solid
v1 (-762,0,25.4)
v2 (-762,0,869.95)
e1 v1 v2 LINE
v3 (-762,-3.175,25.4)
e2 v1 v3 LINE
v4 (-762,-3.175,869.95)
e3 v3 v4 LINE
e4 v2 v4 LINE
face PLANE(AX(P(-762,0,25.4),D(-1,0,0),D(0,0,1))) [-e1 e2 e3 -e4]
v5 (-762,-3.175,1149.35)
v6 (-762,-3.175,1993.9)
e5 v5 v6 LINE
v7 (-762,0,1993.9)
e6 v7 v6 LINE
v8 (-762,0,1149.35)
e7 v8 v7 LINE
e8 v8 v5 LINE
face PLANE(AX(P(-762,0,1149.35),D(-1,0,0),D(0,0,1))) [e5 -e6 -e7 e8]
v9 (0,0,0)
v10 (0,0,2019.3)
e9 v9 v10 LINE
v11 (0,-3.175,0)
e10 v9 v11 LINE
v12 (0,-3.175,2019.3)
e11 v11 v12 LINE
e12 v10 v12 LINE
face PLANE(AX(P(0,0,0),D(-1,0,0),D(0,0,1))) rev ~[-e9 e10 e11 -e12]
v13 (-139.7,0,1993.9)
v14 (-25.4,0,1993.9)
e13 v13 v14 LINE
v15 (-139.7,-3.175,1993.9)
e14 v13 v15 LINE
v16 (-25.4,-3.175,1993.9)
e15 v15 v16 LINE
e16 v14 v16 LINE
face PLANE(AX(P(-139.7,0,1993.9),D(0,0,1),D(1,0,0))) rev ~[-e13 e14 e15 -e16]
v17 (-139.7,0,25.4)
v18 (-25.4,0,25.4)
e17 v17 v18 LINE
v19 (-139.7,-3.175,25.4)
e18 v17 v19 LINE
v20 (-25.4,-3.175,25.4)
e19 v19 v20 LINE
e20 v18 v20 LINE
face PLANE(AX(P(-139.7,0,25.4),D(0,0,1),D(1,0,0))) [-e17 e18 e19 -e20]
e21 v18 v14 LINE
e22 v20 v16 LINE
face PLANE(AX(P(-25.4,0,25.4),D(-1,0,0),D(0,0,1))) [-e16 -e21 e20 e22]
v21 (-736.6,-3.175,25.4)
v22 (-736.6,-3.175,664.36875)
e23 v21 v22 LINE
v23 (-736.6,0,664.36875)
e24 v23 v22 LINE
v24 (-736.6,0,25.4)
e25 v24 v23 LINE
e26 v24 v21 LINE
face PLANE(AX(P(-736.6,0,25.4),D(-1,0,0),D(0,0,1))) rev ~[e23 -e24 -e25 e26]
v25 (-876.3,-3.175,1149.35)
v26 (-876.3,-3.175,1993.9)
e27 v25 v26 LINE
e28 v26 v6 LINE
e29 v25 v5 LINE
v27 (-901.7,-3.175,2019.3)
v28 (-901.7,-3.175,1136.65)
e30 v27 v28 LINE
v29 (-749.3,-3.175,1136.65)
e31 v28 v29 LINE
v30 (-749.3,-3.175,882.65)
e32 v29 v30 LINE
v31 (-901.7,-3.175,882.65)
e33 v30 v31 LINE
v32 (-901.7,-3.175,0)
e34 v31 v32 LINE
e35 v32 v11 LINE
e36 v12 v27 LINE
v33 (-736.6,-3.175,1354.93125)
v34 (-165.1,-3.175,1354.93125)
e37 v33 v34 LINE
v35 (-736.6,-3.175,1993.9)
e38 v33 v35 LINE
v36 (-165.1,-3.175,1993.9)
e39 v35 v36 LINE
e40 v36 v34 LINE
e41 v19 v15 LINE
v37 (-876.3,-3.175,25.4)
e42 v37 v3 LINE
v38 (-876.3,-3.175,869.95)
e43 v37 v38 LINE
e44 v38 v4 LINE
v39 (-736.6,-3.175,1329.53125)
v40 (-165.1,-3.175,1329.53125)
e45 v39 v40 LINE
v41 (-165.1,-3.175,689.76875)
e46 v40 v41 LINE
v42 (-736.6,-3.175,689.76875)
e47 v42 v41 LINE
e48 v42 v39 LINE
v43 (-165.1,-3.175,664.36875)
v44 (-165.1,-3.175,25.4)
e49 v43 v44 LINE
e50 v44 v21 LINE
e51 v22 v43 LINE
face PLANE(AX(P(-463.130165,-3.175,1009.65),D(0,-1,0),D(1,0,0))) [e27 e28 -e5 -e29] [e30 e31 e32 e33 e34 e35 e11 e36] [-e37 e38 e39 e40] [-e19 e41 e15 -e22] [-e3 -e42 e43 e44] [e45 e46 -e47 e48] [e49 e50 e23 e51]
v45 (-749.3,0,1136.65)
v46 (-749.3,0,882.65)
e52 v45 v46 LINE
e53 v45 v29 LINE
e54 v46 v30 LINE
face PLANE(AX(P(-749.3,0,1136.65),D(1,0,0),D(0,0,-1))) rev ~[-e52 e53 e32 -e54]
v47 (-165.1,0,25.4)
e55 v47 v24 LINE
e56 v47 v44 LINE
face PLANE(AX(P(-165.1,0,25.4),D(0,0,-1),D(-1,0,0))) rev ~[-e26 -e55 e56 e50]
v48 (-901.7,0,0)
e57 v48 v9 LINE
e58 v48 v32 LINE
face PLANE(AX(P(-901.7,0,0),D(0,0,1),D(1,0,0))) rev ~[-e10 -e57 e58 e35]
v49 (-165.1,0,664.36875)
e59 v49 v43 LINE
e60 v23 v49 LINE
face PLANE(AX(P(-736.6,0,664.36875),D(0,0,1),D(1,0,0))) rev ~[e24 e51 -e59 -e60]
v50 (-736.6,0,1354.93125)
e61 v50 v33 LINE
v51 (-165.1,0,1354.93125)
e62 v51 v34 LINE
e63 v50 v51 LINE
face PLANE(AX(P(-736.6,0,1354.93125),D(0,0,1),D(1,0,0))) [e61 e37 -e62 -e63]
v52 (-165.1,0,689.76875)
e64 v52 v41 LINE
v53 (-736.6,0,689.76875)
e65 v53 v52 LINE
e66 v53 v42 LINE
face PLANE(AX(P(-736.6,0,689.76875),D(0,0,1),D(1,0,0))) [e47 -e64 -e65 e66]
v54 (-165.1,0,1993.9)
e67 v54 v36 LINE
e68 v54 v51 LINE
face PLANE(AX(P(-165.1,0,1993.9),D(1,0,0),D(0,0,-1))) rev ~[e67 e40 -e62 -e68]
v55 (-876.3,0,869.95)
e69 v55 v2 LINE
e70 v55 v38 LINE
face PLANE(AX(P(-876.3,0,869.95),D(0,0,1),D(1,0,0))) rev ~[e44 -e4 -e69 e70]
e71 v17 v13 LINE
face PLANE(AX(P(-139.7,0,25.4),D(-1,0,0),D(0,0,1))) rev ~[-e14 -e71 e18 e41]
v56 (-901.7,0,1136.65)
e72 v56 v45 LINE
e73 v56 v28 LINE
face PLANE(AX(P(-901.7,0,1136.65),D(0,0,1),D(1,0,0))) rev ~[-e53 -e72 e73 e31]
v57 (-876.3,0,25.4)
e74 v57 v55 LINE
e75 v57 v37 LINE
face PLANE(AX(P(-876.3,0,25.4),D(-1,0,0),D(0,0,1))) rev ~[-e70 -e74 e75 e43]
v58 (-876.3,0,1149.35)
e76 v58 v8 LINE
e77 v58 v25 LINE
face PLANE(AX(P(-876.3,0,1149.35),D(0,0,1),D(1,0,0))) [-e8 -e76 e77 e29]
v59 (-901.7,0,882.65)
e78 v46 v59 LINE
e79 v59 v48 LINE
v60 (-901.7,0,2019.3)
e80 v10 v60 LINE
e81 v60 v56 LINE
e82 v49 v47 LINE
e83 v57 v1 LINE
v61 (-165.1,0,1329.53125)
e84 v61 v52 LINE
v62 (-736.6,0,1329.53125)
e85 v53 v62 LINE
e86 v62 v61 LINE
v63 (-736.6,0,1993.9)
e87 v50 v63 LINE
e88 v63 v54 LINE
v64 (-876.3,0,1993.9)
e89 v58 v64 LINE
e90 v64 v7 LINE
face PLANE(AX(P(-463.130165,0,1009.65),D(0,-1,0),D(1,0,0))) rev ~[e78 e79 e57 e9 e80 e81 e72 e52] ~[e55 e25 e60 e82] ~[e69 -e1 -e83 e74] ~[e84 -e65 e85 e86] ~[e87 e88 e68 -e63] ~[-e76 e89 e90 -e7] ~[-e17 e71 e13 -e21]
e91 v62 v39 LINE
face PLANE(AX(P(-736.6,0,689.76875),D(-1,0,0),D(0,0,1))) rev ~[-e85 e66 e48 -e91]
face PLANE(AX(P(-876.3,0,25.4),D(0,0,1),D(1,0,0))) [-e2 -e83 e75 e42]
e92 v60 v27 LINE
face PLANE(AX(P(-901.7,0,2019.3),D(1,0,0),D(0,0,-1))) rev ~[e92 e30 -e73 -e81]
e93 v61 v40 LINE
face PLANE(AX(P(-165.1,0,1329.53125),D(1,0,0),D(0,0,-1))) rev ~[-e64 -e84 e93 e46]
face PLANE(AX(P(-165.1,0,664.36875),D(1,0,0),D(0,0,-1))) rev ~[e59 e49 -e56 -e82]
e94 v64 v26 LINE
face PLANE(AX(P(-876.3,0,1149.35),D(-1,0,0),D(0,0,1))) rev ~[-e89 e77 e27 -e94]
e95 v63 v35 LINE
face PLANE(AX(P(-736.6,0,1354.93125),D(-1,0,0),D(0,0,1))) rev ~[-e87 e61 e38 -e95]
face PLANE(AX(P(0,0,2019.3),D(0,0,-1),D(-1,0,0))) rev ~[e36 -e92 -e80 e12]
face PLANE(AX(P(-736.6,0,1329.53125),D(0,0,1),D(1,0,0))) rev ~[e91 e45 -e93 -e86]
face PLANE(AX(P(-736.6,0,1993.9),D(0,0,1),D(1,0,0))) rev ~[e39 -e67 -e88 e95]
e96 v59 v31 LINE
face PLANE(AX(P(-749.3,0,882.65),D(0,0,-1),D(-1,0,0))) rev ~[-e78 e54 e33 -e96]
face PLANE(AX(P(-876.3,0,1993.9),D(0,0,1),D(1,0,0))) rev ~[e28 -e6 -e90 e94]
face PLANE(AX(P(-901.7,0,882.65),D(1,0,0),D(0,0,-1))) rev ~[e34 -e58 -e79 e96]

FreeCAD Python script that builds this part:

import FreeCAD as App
import Part
import Sketcher
Q = App.Units.Quantity


def add_polygon(sketch, points):
    """Adds a closed chain of lines whose ends are joined by coincident constraints."""
    first, n = sketch.GeometryCount, len(points)
    for a, b in zip(points, points[1:] + points[:1]):
        sketch.addGeometry(Part.LineSegment(App.Vector(*a, 0), App.Vector(*b, 0)), False)
    for i in range(n):
        sketch.addConstraint(Sketcher.Constraint("Coincident", first + i, 2, first + (i + 1) % n, 1))

doc = App.newDocument("Part")
body = doc.addObject("PartDesign::Body", "Body")

# Sketch on XZ plane
sketch1 = body.newObject("Sketcher::SketchObject", "Sketch")
sketch1.AttachmentSupport = (doc.getObject("XZ_Plane"), [""])
sketch1.MapMode = "FlatFace"
add_polygon(sketch1, [(-902, 0), (0, 0), (0, 2019), (-902, 2019), (-902, 1137), (-749, 1137), (-749, 883), (-902, 883)])  # lines 0-7
add_polygon(sketch1, [(-762, 25), (-876, 25), (-876, 870), (-762, 870)])  # lines 8-11
add_polygon(sketch1, [(-737, 25), (-737, 664), (-165, 664), (-165, 25)])  # lines 12-15
add_polygon(sketch1, [(-737, 690), (-737, 1330), (-165, 1330), (-165, 690)])  # lines 16-19
add_polygon(sketch1, [(-737, 1355), (-737, 1994), (-165, 1994), (-165, 1355)])  # lines 20-23
add_polygon(sketch1, [(-25, 25), (-140, 25), (-140, 1994), (-25, 1994)])  # lines 24-27
add_polygon(sketch1, [(-762, 1149), (-876, 1149), (-876, 1994), (-762, 1994)])  # lines 28-31
sketch1.addConstraint([
    Sketcher.Constraint("Horizontal", 0),
    Sketcher.Constraint("Vertical", 1),
    Sketcher.Constraint("Horizontal", 2),
    Sketcher.Constraint("Vertical", 3),
    Sketcher.Constraint("Horizontal", 4),
    Sketcher.Constraint("Vertical", 5),
    Sketcher.Constraint("Horizontal", 6),
    Sketcher.Constraint("Vertical", 7),
    Sketcher.Constraint("Horizontal", 8),
    Sketcher.Constraint("Vertical", 9),
    Sketcher.Constraint("Horizontal", 10),
    Sketcher.Constraint("Vertical", 11),
    Sketcher.Constraint("Vertical", 12),
    Sketcher.Constraint("Horizontal", 13),
    Sketcher.Constraint("Vertical", 14),
    Sketcher.Constraint("Horizontal", 15),
    Sketcher.Constraint("Vertical", 16),
    Sketcher.Constraint("Horizontal", 17),
    Sketcher.Constraint("Vertical", 18),
    Sketcher.Constraint("Horizontal", 19),
    Sketcher.Constraint("Vertical", 20),
    Sketcher.Constraint("Horizontal", 21),
    Sketcher.Constraint("Vertical", 22),
    Sketcher.Constraint("Horizontal", 23),
    Sketcher.Constraint("Horizontal", 24),
    Sketcher.Constraint("Vertical", 25),
    Sketcher.Constraint("Horizontal", 26),
    Sketcher.Constraint("Vertical", 27),
    Sketcher.Constraint("Horizontal", 28),
    Sketcher.Constraint("Vertical", 29),
    Sketcher.Constraint("Horizontal", 30),
    Sketcher.Constraint("Vertical", 31),
    Sketcher.Constraint("Coincident", 0, 2, -1, 1),
    Sketcher.Constraint("Horizontal", 11, 2, 14, 2),
    Sketcher.Constraint("Horizontal", 15, 2, 24, 2),
    Sketcher.Constraint("Horizontal", 21, 2, 25, 2),
    Sketcher.Constraint("Horizontal", 26, 2, 29, 2),
    Sketcher.Constraint("Vertical", 3, 2, 6, 2),
    Sketcher.Constraint("Vertical", 15, 2, 16, 2),
    Sketcher.Constraint("Vertical", 14, 2, 17, 2),
    Sketcher.Constraint("Vertical", 19, 2, 20, 2),
    Sketcher.Constraint("Vertical", 18, 2, 21, 2),
    Sketcher.Constraint("Vertical", 9, 2, 28, 2),
    Sketcher.Constraint("Vertical", 11, 2, 30, 2),
    Sketcher.Constraint("Equal", 10, 24),
    Sketcher.Constraint("Equal", 3, 7),
    Sketcher.Constraint("Equal", 14, 20),
    Sketcher.Constraint("Equal", 11, 29),
    Sketcher.Constraint("DistanceX", 4, 1, 4, 2, Q("6 in")),
    Sketcher.Constraint("DistanceY", 5, 2, 5, 1, Q("10 in")),
    Sketcher.Constraint("DistanceX", 0, 1, 0, 2, Q("35.5 in")),
    Sketcher.Constraint("DistanceX", 8, 2, 8, 1, Q("4.5 in")),
    Sketcher.Constraint("DistanceX", 13, 1, 13, 2, Q("22.5 in")),
    Sketcher.Constraint("DistanceY", 1, 1, 1, 2, Q("79.5 in")),
    Sketcher.Constraint("DistanceY", 25, 1, 25, 2, Q("77.5 in")),
    Sketcher.Constraint("DistanceY", -1, 1, 8, 2, Q("1 in")),
    Sketcher.Constraint("DistanceX", 10, 2, -1, 1, Q("30 in")),
    Sketcher.Constraint("DistanceX", 12, 2, -1, 1, Q("29 in")),
    Sketcher.Constraint("DistanceX", 26, 2, -1, 1, Q("1 in")),
    Sketcher.Constraint("DistanceY", 13, 2, 18, 2, Q("1 in")),
    Sketcher.Constraint("DistanceY", 17, 2, 22, 2, Q("1 in")),
    Sketcher.Constraint("DistanceY", 9, 1, 9, 2, Q("33.25 in")),
    Sketcher.Constraint("DistanceY", 12, 1, 12, 2, Q("25.15625 in")),
])
pad1 = body.newObject("PartDesign::Pad", "Pad")
pad1.Profile = sketch1
pad1.Length = Q("0.125 in")

doc.recompute()
